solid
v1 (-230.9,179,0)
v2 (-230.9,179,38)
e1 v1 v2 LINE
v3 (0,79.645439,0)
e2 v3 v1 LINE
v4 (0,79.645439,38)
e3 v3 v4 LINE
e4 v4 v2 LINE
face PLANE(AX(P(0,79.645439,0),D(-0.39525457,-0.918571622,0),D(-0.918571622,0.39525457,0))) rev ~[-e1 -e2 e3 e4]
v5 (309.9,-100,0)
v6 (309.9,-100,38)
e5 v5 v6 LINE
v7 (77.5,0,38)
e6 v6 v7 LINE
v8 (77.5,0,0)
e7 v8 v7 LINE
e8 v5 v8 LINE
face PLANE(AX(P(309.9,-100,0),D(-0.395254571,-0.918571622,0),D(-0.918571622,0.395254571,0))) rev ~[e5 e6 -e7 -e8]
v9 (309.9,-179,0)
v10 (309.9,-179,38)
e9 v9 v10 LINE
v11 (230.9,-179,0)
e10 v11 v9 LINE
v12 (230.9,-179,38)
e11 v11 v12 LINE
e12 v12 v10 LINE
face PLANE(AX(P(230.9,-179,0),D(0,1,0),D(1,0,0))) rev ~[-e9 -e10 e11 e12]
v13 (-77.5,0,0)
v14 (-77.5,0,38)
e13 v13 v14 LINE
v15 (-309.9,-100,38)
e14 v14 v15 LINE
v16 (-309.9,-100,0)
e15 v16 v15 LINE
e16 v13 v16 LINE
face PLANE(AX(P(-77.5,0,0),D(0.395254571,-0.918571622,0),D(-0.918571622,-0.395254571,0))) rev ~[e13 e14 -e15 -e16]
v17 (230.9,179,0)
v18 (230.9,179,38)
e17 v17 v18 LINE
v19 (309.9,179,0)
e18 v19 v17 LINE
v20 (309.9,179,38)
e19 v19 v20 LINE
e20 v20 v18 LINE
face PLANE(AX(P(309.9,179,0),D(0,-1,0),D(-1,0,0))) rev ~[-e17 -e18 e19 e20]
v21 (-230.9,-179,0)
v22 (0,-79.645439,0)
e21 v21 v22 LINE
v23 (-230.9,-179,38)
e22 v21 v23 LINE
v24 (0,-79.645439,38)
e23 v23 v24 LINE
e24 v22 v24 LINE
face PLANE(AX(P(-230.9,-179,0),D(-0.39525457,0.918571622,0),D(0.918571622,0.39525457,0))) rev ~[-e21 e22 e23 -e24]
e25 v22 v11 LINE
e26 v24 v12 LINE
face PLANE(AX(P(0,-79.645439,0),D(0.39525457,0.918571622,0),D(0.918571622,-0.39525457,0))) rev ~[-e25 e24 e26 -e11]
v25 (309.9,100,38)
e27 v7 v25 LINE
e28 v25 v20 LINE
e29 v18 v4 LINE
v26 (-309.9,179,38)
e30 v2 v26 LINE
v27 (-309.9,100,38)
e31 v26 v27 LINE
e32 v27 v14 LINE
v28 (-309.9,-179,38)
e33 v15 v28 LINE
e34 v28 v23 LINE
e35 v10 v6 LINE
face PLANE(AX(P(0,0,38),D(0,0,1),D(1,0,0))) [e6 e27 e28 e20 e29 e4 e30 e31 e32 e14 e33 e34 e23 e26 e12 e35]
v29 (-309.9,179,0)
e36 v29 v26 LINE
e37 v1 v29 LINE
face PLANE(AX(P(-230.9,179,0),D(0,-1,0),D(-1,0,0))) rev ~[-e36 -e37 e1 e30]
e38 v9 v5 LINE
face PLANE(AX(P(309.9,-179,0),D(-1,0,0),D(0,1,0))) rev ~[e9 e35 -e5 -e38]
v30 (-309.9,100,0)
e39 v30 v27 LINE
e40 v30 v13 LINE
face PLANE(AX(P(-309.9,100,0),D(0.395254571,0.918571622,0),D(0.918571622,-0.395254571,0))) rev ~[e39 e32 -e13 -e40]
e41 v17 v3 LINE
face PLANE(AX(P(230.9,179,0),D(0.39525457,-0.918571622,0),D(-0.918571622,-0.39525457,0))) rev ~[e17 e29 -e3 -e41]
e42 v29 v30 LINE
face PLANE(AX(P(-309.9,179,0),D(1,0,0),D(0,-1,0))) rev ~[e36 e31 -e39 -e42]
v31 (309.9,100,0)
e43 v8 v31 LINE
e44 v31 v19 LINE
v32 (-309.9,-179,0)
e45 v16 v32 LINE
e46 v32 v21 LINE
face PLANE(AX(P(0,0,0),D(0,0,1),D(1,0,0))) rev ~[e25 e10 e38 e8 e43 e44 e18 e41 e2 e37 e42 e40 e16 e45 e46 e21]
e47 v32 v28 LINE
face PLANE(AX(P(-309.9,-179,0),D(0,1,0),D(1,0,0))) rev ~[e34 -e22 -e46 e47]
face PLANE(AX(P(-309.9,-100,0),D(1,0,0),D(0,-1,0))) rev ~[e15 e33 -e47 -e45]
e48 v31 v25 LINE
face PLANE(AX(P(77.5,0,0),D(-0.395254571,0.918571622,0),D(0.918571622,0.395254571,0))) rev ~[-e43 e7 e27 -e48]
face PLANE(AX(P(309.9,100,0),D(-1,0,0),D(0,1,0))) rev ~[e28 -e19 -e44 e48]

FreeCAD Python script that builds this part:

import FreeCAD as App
import Part
import Sketcher

V = App.Vector

doc = App.newDocument("Part")
body = doc.addObject("PartDesign::Body", "Body")

sketch1 = body.newObject("Sketcher::SketchObject", "Sketch")
sketch1.AttachmentSupport = (doc.getObject("XY_Plane"), [""])
sketch1.MapMode = "FlatFace"
sketch1.addGeometry([
    Part.LineSegment(V(-78, 0, 0), V(-310, -100, 0)),
    Part.LineSegment(V(-310, -100, 0), V(-310, -179, 0)),
    Part.LineSegment(V(-310, -179, 0), V(-231, -179, 0)),
    Part.LineSegment(V(-231, -179, 0), V(0, -80, 0)),
    Part.LineSegment(V(0, -80, 0), V(231, -179, 0)),
    Part.LineSegment(V(231, -179, 0), V(310, -179, 0)),
    Part.LineSegment(V(310, -179, 0), V(310, -100, 0)),
    Part.LineSegment(V(310, -100, 0), V(78, 0, 0)),
    Part.LineSegment(V(78, 0, 0), V(310, 100, 0)),
    Part.LineSegment(V(310, 100, 0), V(310, 179, 0)),
    Part.LineSegment(V(310, 179, 0), V(231, 179, 0)),
    Part.LineSegment(V(231, 179, 0), V(0, 80, 0)),
    Part.LineSegment(V(0, 80, 0), V(-231, 179, 0)),
    Part.LineSegment(V(-231, 179, 0), V(-310, 179, 0)),
    Part.LineSegment(V(-310, 179, 0), V(-310, 100, 0)),
    Part.LineSegment(V(-310, 100, 0), V(-78, 0, 0)),
], False)
sketch1.addConstraint([
    Sketcher.Constraint("Coincident", 0, 2, 1, 1),
    Sketcher.Constraint("Coincident", 1, 2, 2, 1),
    Sketcher.Constraint("Coincident", 2, 2, 3, 1),
    Sketcher.Constraint("Coincident", 3, 2, 4, 1),
    Sketcher.Constraint("Coincident", 4, 2, 5, 1),
    Sketcher.Constraint("Coincident", 5, 2, 6, 1),
    Sketcher.Constraint("Coincident", 6, 2, 7, 1),
    Sketcher.Constraint("Coincident", 7, 2, 8, 1),
    Sketcher.Constraint("Coincident", 8, 2, 9, 1),
    Sketcher.Constraint("Coincident", 9, 2, 10, 1),
    Sketcher.Constraint("Coincident", 10, 2, 11, 1),
    Sketcher.Constraint("Coincident", 11, 2, 12, 1),
    Sketcher.Constraint("Coincident", 12, 2, 13, 1),
    Sketcher.Constraint("Coincident", 13, 2, 14, 1),
    Sketcher.Constraint("Coincident", 14, 2, 15, 1),
    Sketcher.Constraint("Coincident", 15, 2, 0, 1),
    Sketcher.Constraint("Vertical", 1),
    Sketcher.Constraint("Horizontal", 2),
    Sketcher.Constraint("Horizontal", 5),
    Sketcher.Constraint("Vertical", 6),
    Sketcher.Constraint("Vertical", 9),
    Sketcher.Constraint("Horizontal", 10),
    Sketcher.Constraint("Horizontal", 13),
    Sketcher.Constraint("Vertical", 14),
    Sketcher.Constraint("Symmetric", 0, 2, 8, 2, -1, 1),
    Sketcher.Constraint("Symmetric", 2, 2, 10, 2, -1, 1),
    Sketcher.Constraint("Symmetric", 3, 2, 11, 2, -1, 1),
    Sketcher.Constraint("Symmetric", 4, 2, 12, 2, -1, 1),
    Sketcher.Constraint("Symmetric", 6, 2, 14, 2, -1, 1),
    Sketcher.Constraint("Symmetric", 7, 2, 15, 2, -1, 1),
    Sketcher.Constraint("Symmetric", 2, 2, 4, 2, -2),
    Sketcher.Constraint("Symmetric", 0, 2, 6, 2, -2),
    Sketcher.Constraint("PointOnObject", 3, 2, -2),
    Sketcher.Constraint("PointOnObject", 7, 2, -1),
    Sketcher.Constraint("Parallel", 0, 3),
    Sketcher.Constraint("Equal", 13, 1),
    Sketcher.Constraint("DistanceX", 2, 1, 2, 2, 79.0),
    Sketcher.Constraint("DistanceY", 0, 2, -1, 1, 100.0),
    Sketcher.Constraint("DistanceX", 15, 2, 7, 2, 155.0),
    Sketcher.Constraint("DistanceX", 0, 2, -1, 1, 309.9),
])
pad1 = body.newObject("PartDesign::Pad", "Pad")
pad1.Profile = sketch1
pad1.Length = 38

doc.recompute()
